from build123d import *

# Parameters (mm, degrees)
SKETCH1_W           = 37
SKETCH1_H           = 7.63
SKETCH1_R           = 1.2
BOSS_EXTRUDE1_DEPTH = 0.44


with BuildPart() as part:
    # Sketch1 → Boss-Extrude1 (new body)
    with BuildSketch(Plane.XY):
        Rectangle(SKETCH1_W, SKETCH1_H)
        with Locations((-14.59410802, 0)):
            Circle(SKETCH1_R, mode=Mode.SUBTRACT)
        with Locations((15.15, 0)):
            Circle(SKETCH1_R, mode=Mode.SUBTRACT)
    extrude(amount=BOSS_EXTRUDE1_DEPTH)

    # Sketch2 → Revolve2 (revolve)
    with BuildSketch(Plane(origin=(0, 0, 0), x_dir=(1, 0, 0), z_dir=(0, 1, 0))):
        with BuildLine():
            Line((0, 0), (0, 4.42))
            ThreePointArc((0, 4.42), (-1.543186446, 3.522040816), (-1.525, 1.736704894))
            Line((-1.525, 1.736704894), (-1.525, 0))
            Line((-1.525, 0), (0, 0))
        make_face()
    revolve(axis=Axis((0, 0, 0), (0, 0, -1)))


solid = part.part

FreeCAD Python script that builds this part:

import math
import FreeCAD as App
import Part
import Sketcher
from FreeCAD import Vector
Q = App.Units.Quantity

doc = App.newDocument("Part")
body = doc.addObject("PartDesign::Body", "Body")

sketch1 = doc.addObject("Sketcher::SketchObject", "Sketch")
body.addObject(sketch1)
sketch1.AttachmentSupport = (doc.XY_Plane, [""])
sketch1.MapMode = "FlatFace"
sketch1.addGeometry([
    Part.LineSegment(Vector(-18.5, 3.815, 0), Vector(-18.5, -3.815, 0)),
    Part.LineSegment(Vector(-18.5, -3.815, 0), Vector(18.5, -3.815, 0)),
    Part.LineSegment(Vector(18.5, -3.815, 0), Vector(18.5, 3.815, 0)),
    Part.LineSegment(Vector(18.5, 3.815, 0), Vector(-18.5, 3.815, 0)),
    Part.Circle(Vector(-14.594108, 0, 0), Vector(0, 0, 1), 1.2),
    Part.Circle(Vector(15.15, 0, 0), Vector(0, 0, 1), 1.2),
], False)
sketch1.addConstraint([
    Sketcher.Constraint("Coincident", 0, 2, 1, 1),
    Sketcher.Constraint("Coincident", 1, 2, 2, 1),
    Sketcher.Constraint("Coincident", 2, 2, 3, 1),
    Sketcher.Constraint("Coincident", 3, 2, 0, 1),
    Sketcher.Constraint("Vertical", 0),
    Sketcher.Constraint("Horizontal", 1),
    Sketcher.Constraint("Vertical", 2),
    Sketcher.Constraint("Horizontal", 3),
    Sketcher.Constraint("Equal", 4, 5),
    Sketcher.Constraint("Symmetric", 0, 2, 2, 2, -1, 1),
    Sketcher.Constraint("PointOnObject", 4, 3, -1),
    Sketcher.Constraint("PointOnObject", 5, 3, -1),
    Sketcher.Constraint("Diameter", 4, Q("2.4 mm")),
    Sketcher.Constraint("DistanceX", 1, 1, 1, 2, Q("37 mm")),
    Sketcher.Constraint("DistanceY", 0, 2, 0, 1, Q("7.63 mm")),
    Sketcher.Constraint("DistanceX", -1, 1, 5, 3, Q("15.15 mm")),
    Sketcher.Constraint("DistanceX", 4, 3, -1, 1, Q("14.594108 mm")),
])
pad1 = doc.addObject("PartDesign::Pad", "Pad")
body.addObject(pad1)
pad1.Profile = sketch1
pad1.Length = 0.44

sketch2 = doc.addObject("Sketcher::SketchObject", "Sketch001")
body.addObject(sketch2)
sketch2.AttachmentSupport = (doc.XZ_Plane, [""])
sketch2.MapMode = "FlatFace"
sketch2.addGeometry([
    Part.LineSegment(Vector(0, 0, 0), Vector(0, -4.42, 0)),
    Part.ArcOfCircle(Part.Circle(Vector(0, -2.645, 0), Vector(0, 0, 1), 1.775), math.radians(149.22183), math.radians(270)),
    Part.LineSegment(Vector(-1.525, -1.736705, 0), Vector(-1.525, 0, 0)),
    Part.LineSegment(Vector(-1.525, 0, 0), Vector(0, 0, 0)),
], False)
sketch2.addConstraint([
    Sketcher.Constraint("Coincident", 0, 2, 1, 2),
    Sketcher.Constraint("Coincident", 1, 1, 2, 1),
    Sketcher.Constraint("Coincident", 2, 2, 3, 1),
    Sketcher.Constraint("Coincident", 3, 2, 0, 1),
    Sketcher.Constraint("Vertical", 0),
    Sketcher.Constraint("Vertical", 2),
    Sketcher.Constraint("Horizontal", 3),
    Sketcher.Constraint("Coincident", 3, 2, -1, 1),
    Sketcher.Constraint("PointOnObject", 1, 3, -2),
    Sketcher.Constraint("Radius", 1, Q("1.775 mm")),
    Sketcher.Constraint("DistanceY", 0, 2, 0, 1, Q("4.42 mm")),
    Sketcher.Constraint("DistanceX", 3, 1, 3, 2, Q("1.525 mm")),
])
revolution = doc.addObject("PartDesign::Revolution", "Revolution")
body.addObject(revolution)
revolution.Profile = sketch2
revolution.ReferenceAxis = (sketch2, ["V_Axis"])
revolution.Angle = 360

doc.recompute()
